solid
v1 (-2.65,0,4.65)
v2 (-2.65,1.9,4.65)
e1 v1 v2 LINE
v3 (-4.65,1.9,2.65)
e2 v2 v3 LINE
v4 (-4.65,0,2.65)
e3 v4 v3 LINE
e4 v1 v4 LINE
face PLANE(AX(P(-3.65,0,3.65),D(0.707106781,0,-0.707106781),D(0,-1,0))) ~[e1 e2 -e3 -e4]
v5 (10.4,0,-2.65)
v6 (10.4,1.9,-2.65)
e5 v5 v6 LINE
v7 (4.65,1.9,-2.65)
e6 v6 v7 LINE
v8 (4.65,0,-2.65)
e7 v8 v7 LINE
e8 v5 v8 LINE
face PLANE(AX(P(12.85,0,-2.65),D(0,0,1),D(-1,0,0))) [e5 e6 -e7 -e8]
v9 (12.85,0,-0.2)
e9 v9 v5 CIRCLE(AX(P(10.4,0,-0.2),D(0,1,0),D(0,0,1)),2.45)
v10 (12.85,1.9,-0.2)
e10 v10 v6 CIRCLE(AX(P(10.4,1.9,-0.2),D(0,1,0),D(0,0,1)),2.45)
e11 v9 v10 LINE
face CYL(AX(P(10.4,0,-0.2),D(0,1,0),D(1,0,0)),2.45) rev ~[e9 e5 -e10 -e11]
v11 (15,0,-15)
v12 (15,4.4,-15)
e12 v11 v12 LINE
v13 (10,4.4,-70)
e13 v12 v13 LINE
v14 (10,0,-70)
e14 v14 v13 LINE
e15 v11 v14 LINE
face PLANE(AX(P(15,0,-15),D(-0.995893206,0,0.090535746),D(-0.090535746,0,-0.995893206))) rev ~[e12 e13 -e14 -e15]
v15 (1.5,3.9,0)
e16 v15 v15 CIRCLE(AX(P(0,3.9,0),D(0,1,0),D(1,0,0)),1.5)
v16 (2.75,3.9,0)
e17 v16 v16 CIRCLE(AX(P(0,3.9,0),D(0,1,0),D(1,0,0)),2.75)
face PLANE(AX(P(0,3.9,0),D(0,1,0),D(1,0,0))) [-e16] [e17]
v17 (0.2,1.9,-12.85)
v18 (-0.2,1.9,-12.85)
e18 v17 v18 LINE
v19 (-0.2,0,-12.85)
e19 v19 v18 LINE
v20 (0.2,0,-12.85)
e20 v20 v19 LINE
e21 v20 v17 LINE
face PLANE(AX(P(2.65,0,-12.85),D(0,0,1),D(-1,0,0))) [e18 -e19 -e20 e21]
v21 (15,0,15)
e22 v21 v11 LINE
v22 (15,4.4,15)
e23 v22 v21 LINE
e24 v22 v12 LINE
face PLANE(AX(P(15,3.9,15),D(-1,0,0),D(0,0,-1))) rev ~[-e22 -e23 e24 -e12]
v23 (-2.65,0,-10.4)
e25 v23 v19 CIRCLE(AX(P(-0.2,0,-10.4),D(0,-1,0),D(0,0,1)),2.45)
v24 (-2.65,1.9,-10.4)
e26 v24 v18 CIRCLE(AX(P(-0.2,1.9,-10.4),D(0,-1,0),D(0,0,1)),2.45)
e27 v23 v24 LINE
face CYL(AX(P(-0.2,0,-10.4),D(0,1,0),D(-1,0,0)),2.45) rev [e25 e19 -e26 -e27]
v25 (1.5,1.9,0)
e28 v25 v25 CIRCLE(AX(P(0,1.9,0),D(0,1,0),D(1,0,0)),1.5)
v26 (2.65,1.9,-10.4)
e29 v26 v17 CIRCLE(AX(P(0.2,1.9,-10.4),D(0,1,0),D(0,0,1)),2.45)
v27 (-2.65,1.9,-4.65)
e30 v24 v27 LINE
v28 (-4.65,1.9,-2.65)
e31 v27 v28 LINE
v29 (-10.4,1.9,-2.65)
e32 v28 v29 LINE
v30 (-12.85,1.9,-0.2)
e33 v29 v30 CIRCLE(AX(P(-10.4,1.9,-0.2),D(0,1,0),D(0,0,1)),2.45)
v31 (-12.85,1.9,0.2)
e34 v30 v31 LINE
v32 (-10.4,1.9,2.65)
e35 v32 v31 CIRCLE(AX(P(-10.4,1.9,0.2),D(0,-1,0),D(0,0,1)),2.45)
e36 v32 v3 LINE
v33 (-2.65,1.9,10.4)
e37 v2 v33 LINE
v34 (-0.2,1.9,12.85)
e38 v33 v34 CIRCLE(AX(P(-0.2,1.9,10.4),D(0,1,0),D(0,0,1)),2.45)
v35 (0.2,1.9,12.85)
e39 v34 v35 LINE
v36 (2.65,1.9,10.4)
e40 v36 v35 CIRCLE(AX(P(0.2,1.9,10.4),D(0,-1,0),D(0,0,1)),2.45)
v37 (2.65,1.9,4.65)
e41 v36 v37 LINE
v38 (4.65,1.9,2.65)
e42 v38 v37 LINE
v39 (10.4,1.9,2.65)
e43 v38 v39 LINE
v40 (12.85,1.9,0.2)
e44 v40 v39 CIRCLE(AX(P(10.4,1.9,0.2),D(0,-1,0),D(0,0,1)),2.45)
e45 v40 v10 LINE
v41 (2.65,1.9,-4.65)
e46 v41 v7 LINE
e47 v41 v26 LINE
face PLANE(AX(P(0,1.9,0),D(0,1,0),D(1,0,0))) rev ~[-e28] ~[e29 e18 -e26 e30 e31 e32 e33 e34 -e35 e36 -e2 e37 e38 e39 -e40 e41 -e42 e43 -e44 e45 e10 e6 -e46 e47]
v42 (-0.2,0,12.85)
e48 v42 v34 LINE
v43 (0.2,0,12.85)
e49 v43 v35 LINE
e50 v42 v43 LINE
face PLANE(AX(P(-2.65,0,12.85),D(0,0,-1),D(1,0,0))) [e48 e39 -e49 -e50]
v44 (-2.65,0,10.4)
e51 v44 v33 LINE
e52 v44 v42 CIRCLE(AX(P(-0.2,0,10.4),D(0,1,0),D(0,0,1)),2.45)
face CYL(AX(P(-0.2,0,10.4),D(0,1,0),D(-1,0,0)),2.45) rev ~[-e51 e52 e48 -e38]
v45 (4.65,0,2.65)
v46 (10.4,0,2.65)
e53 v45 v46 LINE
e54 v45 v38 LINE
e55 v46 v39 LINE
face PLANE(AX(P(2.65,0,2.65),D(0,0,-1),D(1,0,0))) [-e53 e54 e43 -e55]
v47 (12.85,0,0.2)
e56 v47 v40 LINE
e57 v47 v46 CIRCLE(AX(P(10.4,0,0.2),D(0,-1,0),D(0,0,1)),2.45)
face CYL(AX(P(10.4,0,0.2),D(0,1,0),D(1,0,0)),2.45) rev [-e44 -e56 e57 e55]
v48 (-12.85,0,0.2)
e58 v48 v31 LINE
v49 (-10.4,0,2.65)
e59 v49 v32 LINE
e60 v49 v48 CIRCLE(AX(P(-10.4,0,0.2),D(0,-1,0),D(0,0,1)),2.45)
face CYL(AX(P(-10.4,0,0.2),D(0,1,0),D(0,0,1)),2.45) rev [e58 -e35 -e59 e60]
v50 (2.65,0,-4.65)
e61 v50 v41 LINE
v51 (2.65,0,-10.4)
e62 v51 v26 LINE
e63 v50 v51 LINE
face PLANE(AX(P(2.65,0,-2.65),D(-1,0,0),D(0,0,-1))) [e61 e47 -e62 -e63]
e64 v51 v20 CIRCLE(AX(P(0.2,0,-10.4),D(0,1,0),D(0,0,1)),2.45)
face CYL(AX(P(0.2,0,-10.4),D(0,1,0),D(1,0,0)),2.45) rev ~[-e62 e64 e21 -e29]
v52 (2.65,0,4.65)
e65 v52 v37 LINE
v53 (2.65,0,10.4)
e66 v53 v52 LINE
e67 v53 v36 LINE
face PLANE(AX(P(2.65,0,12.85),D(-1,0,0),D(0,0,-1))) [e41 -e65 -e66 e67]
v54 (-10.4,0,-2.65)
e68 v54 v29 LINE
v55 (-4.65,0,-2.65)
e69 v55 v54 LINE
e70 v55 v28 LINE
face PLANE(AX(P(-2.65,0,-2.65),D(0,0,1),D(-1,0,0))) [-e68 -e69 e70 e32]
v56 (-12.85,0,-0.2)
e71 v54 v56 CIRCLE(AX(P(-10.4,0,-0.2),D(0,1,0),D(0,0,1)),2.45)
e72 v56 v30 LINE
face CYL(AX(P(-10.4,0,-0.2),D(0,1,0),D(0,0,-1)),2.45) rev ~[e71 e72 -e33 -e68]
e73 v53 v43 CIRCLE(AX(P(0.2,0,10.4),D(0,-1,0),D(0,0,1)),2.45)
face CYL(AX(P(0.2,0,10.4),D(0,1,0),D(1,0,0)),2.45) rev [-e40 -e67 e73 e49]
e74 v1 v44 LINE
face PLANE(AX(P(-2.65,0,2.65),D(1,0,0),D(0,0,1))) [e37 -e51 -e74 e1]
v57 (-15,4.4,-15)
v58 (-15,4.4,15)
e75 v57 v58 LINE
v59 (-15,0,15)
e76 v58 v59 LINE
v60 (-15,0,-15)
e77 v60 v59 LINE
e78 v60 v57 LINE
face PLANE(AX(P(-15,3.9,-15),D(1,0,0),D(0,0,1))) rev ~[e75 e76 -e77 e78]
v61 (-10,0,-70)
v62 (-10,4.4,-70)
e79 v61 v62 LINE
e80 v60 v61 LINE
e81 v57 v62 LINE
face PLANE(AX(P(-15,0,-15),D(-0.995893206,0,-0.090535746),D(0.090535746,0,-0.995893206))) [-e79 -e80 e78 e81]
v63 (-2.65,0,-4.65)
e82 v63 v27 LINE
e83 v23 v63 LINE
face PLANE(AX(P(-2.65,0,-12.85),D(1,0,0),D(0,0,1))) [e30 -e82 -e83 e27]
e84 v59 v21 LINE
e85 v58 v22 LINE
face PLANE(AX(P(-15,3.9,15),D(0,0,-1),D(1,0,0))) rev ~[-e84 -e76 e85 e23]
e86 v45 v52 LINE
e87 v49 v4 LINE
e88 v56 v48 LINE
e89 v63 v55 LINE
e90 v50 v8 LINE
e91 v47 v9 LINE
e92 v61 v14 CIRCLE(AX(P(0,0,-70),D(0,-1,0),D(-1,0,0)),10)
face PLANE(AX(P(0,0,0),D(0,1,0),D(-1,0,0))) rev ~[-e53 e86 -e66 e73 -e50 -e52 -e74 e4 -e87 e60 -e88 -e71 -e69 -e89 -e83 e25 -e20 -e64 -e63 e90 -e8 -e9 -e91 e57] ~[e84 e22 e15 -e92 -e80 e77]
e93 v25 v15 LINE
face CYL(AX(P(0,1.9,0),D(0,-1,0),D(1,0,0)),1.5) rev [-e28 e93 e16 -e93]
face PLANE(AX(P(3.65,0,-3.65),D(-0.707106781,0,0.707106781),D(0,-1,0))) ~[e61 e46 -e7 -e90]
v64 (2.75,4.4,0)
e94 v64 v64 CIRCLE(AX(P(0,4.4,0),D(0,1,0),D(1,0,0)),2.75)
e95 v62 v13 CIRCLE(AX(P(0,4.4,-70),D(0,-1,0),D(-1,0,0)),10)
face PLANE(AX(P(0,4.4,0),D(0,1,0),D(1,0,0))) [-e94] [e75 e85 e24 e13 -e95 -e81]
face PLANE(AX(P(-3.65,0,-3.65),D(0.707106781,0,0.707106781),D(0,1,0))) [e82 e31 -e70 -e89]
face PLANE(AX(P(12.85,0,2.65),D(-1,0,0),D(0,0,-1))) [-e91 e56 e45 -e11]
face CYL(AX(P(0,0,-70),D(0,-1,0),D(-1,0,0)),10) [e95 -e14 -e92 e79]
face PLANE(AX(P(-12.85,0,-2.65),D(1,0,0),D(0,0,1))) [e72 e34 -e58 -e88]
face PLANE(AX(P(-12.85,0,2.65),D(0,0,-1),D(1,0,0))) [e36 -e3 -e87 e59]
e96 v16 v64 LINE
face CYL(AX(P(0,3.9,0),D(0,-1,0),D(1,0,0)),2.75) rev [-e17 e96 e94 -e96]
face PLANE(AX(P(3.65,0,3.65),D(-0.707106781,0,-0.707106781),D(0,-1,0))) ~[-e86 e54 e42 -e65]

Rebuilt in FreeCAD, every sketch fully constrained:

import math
import FreeCAD as App
import Part
import Sketcher

V = App.Vector


def edges_at(feature, points):
    """Names of the edges that pass closest to the given points."""
    edges = feature.Shape.Edges
    near = lambda p: min(range(len(edges)), key=lambda i: edges[i].distToShape(Part.Vertex(*p))[0])
    return sorted({f"Edge{near(p) + 1}" for p in points})


def add_polygon(sketch, points):
    """Adds a closed chain of lines whose ends are joined by coincident constraints."""
    first, n = sketch.GeometryCount, len(points)
    for a, b in zip(points, points[1:] + points[:1]):
        sketch.addGeometry(Part.LineSegment(App.Vector(*a, 0), App.Vector(*b, 0)), False)
    for i in range(n):
        sketch.addConstraint(Sketcher.Constraint("Coincident", first + i, 2, first + (i + 1) % n, 1))

doc = App.newDocument("Part")
body = doc.addObject("PartDesign::Body", "Body")

# Sketch on XZ plane
sketch1 = body.newObject("Sketcher::SketchObject", "Sketch")
sketch1.AttachmentSupport = (doc.getObject("XZ_Plane"), [""])
sketch1.MapMode = "FlatFace"
add_polygon(sketch1, [(15, 15), (15, -15), (-15, -15), (-15, 15)])  # lines 0-3
add_polygon(sketch1, [(2.65, -2.65), (12.85, -2.65), (12.85, 2.65), (2.65, 2.65), (2.65, 12.85), (-2.65, 12.85), (-2.65, 2.65), (-12.85, 2.65), (-12.85, -2.65), (-2.65, -2.65), (-2.65, -12.85), (2.65, -12.85)])  # lines 4-15
sketch1.addConstraint(Sketcher.Constraint("Vertical", 0))
sketch1.addConstraint(Sketcher.Constraint("Horizontal", 1))
sketch1.addConstraint(Sketcher.Constraint("Vertical", 2))
sketch1.addConstraint(Sketcher.Constraint("Horizontal", 3))
sketch1.addConstraint(Sketcher.Constraint("Horizontal", 4))
sketch1.addConstraint(Sketcher.Constraint("Vertical", 5))
sketch1.addConstraint(Sketcher.Constraint("Horizontal", 6))
sketch1.addConstraint(Sketcher.Constraint("Vertical", 7))
sketch1.addConstraint(Sketcher.Constraint("Horizontal", 8))
sketch1.addConstraint(Sketcher.Constraint("Vertical", 9))
sketch1.addConstraint(Sketcher.Constraint("Horizontal", 10))
sketch1.addConstraint(Sketcher.Constraint("Vertical", 11))
sketch1.addConstraint(Sketcher.Constraint("Horizontal", 12))
sketch1.addConstraint(Sketcher.Constraint("Vertical", 13))
sketch1.addConstraint(Sketcher.Constraint("Horizontal", 14))
sketch1.addConstraint(Sketcher.Constraint("Vertical", 15))
sketch1.addConstraint(Sketcher.Constraint("Symmetric", 0, 2, 2, 2, -1, 1))
sketch1.addConstraint(Sketcher.Constraint("Symmetric", 4, 2, 10, 2, -1, 1))
sketch1.addConstraint(Sketcher.Constraint("Symmetric", 6, 2, 12, 2, -1, 1))
sketch1.addConstraint(Sketcher.Constraint("Symmetric", 8, 2, 14, 2, -1, 1))
sketch1.addConstraint(Sketcher.Constraint("Symmetric", 6, 2, 9, 2, -2))
sketch1.addConstraint(Sketcher.Constraint("Equal", 3, 0))
sketch1.addConstraint(Sketcher.Constraint("Equal", 14, 5))
sketch1.addConstraint(Sketcher.Constraint("Equal", 12, 7))
sketch1.addConstraint(Sketcher.Constraint("DistanceX", 1, 2, 1, 1, 30.0))
sketch1.addConstraint(Sketcher.Constraint("DistanceX", 4, 1, 4, 2, 10.2))
sketch1.addConstraint(Sketcher.Constraint("DistanceX", 8, 2, 8, 1, 5.3))
pad1 = body.newObject("PartDesign::Pad", "Pad")
pad1.Profile = sketch1
pad1.Length = 1.9
pad1.Reversed = True

# Sketch on XZ plane
sketch2 = body.newObject("Sketcher::SketchObject", "Sketch001")
sketch2.AttachmentSupport = (doc.getObject("XZ_Plane"), [""])
sketch2.MapMode = "FlatFace"
sketch2.AttachmentOffset = App.Placement(V(0, 0, -1.9), App.Rotation())
add_polygon(sketch2, [(15, 15), (15, -15), (-15, -15), (-15, 15)])  # lines 0-3
sketch2.addGeometry(Part.Circle(V(0, 0, 0), V(0, 0, 1), 1.5), False)  # 4
sketch2.addConstraint(Sketcher.Constraint("Vertical", 0))
sketch2.addConstraint(Sketcher.Constraint("Horizontal", 1))
sketch2.addConstraint(Sketcher.Constraint("Vertical", 2))
sketch2.addConstraint(Sketcher.Constraint("Horizontal", 3))
sketch2.addConstraint(Sketcher.Constraint("Coincident", 4, 3, -1, 1))
sketch2.addConstraint(Sketcher.Constraint("Symmetric", 0, 2, 2, 2, -1, 1))
sketch2.addConstraint(Sketcher.Constraint("Equal", 3, 0))
sketch2.addConstraint(Sketcher.Constraint("Diameter", 4, 3.0))
sketch2.addConstraint(Sketcher.Constraint("DistanceX", 1, 2, 1, 1, 30.0))
pad2 = body.newObject("PartDesign::Pad", "Pad001")
pad2.Profile = sketch2
pad2.Length = 2
pad2.Reversed = True

# Sketch on XZ plane
sketch3 = body.newObject("Sketcher::SketchObject", "Sketch002")
sketch3.AttachmentSupport = (doc.getObject("XZ_Plane"), [""])
sketch3.MapMode = "FlatFace"
sketch3.AttachmentOffset = App.Placement(V(0, 0, -3.9), App.Rotation())
add_polygon(sketch3, [(15, 15), (15, -15), (-15, -15), (-15, 15)])  # lines 0-3
sketch3.addGeometry(Part.Circle(V(0, 0, 0), V(0, 0, 1), 2.75), False)  # 4
sketch3.addConstraint(Sketcher.Constraint("Vertical", 0))
sketch3.addConstraint(Sketcher.Constraint("Horizontal", 1))
sketch3.addConstraint(Sketcher.Constraint("Vertical", 2))
sketch3.addConstraint(Sketcher.Constraint("Horizontal", 3))
sketch3.addConstraint(Sketcher.Constraint("Coincident", 4, 3, -1, 1))
sketch3.addConstraint(Sketcher.Constraint("Symmetric", 0, 2, 2, 2, -1, 1))
sketch3.addConstraint(Sketcher.Constraint("Equal", 3, 0))
sketch3.addConstraint(Sketcher.Constraint("Diameter", 4, 5.5))
sketch3.addConstraint(Sketcher.Constraint("DistanceX", 1, 2, 1, 1, 30.0))
pad3 = body.newObject("PartDesign::Pad", "Pad002")
pad3.Profile = sketch3
pad3.Length = 0.5
pad3.Reversed = True
doc.recompute()

chamfer = body.newObject("PartDesign::Chamfer", "Chamfer")
chamfer.Base = (pad3, edges_at(pad3, [(-2.65, 0.95, -2.65)]))
chamfer.Size = 2
doc.recompute()

fillet = body.newObject("PartDesign::Fillet", "Fillet")
fillet.Base = (chamfer, edges_at(chamfer, [(-12.85, 0.95, -2.65)]))
fillet.Radius = 2.45
doc.recompute()

fillet2 = body.newObject("PartDesign::Fillet", "Fillet001")
fillet2.Base = (fillet, edges_at(fillet, [(-2.65, 0.95, -12.85)]))
fillet2.Radius = 2.45
doc.recompute()

chamfer2 = body.newObject("PartDesign::Chamfer", "Chamfer001")
chamfer2.Base = (fillet2, edges_at(fillet2, [(2.65, 0.95, -2.65)]))
chamfer2.Size = 2
doc.recompute()

chamfer3 = body.newObject("PartDesign::Chamfer", "Chamfer002")
chamfer3.Base = (chamfer2, edges_at(chamfer2, [(2.65, 0.95, 2.65)]))
chamfer3.Size = 2
doc.recompute()

fillet3 = body.newObject("PartDesign::Fillet", "Fillet002")
fillet3.Base = (chamfer3, edges_at(chamfer3, [(12.85, 0.95, -2.65)]))
fillet3.Radius = 2.45
doc.recompute()

fillet4 = body.newObject("PartDesign::Fillet", "Fillet003")
fillet4.Base = (fillet3, edges_at(fillet3, [(2.65, 0.95, -12.85)]))
fillet4.Radius = 2.45
doc.recompute()

fillet5 = body.newObject("PartDesign::Fillet", "Fillet004")
fillet5.Base = (fillet4, edges_at(fillet4, [(12.85, 0.95, 2.65)]))
fillet5.Radius = 2.45
doc.recompute()

fillet6 = body.newObject("PartDesign::Fillet", "Fillet005")
fillet6.Base = (fillet5, edges_at(fillet5, [(2.65, 0.95, 12.85)]))
fillet6.Radius = 2.45
doc.recompute()

chamfer4 = body.newObject("PartDesign::Chamfer", "Chamfer003")
chamfer4.Base = (fillet6, edges_at(fillet6, [(-2.65, 0.95, 2.65)]))
chamfer4.Size = 2
doc.recompute()

fillet7 = body.newObject("PartDesign::Fillet", "Fillet006")
fillet7.Base = (chamfer4, edges_at(chamfer4, [(-2.65, 0.95, 12.85), (-12.85, 0.95, 2.65)]))
fillet7.Radius = 2.45

# Sketch on XZ plane
sketch4 = body.newObject("Sketcher::SketchObject", "Sketch003")
sketch4.AttachmentSupport = (doc.getObject("XZ_Plane"), [""])
sketch4.MapMode = "FlatFace"
sketch4.addGeometry(Part.LineSegment(V(10, -70, 0), V(15, -15, 0)), False)
sketch4.addGeometry(Part.LineSegment(V(15, -15, 0), V(-15, -15, 0)), False)
sketch4.addGeometry(Part.LineSegment(V(-15, -15, 0), V(-10, -70, 0)), False)
sketch4.addGeometry(Part.ArcOfCircle(Part.Circle(V(0, -70, 0), V(0, 0, 1), 10), math.radians(180), math.radians(360)), False)
sketch4.addConstraint(Sketcher.Constraint("Coincident", 0, 2, 1, 1))
sketch4.addConstraint(Sketcher.Constraint("Coincident", 1, 2, 2, 1))
sketch4.addConstraint(Sketcher.Constraint("Coincident", 2, 2, 3, 1))
sketch4.addConstraint(Sketcher.Constraint("Coincident", 3, 2, 0, 1))
sketch4.addConstraint(Sketcher.Constraint("Horizontal", 1))
sketch4.addConstraint(Sketcher.Constraint("Symmetric", 2, 2, 3, 2, -2))
sketch4.addConstraint(Sketcher.Constraint("Horizontal", 3, 3, 2, 2))
sketch4.addConstraint(Sketcher.Constraint("Equal", 0, 2))
sketch4.addConstraint(Sketcher.Constraint("Radius", 3, 10.0))
sketch4.addConstraint(Sketcher.Constraint("DistanceY", 3, 3, -1, 1, 70.0))
sketch4.addConstraint(Sketcher.Constraint("DistanceX", 1, 2, 1, 1, 30.0))
sketch4.addConstraint(Sketcher.Constraint("DistanceY", 0, 2, -1, 1, 15.0))
pad4 = body.newObject("PartDesign::Pad", "Pad003")
pad4.Profile = sketch4
pad4.Length = 4.4
pad4.Reversed = True

doc.recompute()
